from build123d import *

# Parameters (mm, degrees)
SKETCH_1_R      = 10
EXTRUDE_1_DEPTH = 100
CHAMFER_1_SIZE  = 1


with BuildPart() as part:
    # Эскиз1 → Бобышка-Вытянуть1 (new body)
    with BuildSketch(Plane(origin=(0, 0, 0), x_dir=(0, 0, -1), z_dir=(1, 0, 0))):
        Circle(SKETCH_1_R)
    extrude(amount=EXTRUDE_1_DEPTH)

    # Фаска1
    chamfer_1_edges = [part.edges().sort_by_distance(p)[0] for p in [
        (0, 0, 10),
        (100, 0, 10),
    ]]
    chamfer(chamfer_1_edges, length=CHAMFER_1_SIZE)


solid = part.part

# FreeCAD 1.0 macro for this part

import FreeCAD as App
import Part
import Sketcher
from FreeCAD import Vector
Q = App.Units.Quantity


def edges_at(feature, points):
    """Names of the edges that pass closest to the given points."""
    edges = feature.Shape.Edges
    near = lambda p: min(range(len(edges)), key=lambda i: edges[i].distToShape(Part.Vertex(*p))[0])
    return sorted({f"Edge{near(p) + 1}" for p in points})

doc = App.newDocument("Part")
body = doc.addObject("PartDesign::Body", "Body")

sketch1 = body.newObject("Sketcher::SketchObject", "Sketch")
sketch1.AttachmentSupport = (doc.getObject("YZ_Plane"), [""])
sketch1.MapMode = "FlatFace"
sketch1.addGeometry(Part.Circle(Vector(0, 0, 0), Vector(0, 0, 1), 10), False)
sketch1.addConstraint([
    Sketcher.Constraint("Coincident", 0, 3, -1, 1),
    Sketcher.Constraint("Diameter", 0, Q("20 mm")),
])
pad1 = body.newObject("PartDesign::Pad", "Pad")
pad1.Profile = sketch1
pad1.Length = 100
doc.recompute()

chamfer = body.newObject("PartDesign::Chamfer", "Chamfer")
chamfer.Base = (pad1, edges_at(pad1, [(0, 0, 10), (100, 0, 10)]))
chamfer.Size = 1

doc.recompute()
